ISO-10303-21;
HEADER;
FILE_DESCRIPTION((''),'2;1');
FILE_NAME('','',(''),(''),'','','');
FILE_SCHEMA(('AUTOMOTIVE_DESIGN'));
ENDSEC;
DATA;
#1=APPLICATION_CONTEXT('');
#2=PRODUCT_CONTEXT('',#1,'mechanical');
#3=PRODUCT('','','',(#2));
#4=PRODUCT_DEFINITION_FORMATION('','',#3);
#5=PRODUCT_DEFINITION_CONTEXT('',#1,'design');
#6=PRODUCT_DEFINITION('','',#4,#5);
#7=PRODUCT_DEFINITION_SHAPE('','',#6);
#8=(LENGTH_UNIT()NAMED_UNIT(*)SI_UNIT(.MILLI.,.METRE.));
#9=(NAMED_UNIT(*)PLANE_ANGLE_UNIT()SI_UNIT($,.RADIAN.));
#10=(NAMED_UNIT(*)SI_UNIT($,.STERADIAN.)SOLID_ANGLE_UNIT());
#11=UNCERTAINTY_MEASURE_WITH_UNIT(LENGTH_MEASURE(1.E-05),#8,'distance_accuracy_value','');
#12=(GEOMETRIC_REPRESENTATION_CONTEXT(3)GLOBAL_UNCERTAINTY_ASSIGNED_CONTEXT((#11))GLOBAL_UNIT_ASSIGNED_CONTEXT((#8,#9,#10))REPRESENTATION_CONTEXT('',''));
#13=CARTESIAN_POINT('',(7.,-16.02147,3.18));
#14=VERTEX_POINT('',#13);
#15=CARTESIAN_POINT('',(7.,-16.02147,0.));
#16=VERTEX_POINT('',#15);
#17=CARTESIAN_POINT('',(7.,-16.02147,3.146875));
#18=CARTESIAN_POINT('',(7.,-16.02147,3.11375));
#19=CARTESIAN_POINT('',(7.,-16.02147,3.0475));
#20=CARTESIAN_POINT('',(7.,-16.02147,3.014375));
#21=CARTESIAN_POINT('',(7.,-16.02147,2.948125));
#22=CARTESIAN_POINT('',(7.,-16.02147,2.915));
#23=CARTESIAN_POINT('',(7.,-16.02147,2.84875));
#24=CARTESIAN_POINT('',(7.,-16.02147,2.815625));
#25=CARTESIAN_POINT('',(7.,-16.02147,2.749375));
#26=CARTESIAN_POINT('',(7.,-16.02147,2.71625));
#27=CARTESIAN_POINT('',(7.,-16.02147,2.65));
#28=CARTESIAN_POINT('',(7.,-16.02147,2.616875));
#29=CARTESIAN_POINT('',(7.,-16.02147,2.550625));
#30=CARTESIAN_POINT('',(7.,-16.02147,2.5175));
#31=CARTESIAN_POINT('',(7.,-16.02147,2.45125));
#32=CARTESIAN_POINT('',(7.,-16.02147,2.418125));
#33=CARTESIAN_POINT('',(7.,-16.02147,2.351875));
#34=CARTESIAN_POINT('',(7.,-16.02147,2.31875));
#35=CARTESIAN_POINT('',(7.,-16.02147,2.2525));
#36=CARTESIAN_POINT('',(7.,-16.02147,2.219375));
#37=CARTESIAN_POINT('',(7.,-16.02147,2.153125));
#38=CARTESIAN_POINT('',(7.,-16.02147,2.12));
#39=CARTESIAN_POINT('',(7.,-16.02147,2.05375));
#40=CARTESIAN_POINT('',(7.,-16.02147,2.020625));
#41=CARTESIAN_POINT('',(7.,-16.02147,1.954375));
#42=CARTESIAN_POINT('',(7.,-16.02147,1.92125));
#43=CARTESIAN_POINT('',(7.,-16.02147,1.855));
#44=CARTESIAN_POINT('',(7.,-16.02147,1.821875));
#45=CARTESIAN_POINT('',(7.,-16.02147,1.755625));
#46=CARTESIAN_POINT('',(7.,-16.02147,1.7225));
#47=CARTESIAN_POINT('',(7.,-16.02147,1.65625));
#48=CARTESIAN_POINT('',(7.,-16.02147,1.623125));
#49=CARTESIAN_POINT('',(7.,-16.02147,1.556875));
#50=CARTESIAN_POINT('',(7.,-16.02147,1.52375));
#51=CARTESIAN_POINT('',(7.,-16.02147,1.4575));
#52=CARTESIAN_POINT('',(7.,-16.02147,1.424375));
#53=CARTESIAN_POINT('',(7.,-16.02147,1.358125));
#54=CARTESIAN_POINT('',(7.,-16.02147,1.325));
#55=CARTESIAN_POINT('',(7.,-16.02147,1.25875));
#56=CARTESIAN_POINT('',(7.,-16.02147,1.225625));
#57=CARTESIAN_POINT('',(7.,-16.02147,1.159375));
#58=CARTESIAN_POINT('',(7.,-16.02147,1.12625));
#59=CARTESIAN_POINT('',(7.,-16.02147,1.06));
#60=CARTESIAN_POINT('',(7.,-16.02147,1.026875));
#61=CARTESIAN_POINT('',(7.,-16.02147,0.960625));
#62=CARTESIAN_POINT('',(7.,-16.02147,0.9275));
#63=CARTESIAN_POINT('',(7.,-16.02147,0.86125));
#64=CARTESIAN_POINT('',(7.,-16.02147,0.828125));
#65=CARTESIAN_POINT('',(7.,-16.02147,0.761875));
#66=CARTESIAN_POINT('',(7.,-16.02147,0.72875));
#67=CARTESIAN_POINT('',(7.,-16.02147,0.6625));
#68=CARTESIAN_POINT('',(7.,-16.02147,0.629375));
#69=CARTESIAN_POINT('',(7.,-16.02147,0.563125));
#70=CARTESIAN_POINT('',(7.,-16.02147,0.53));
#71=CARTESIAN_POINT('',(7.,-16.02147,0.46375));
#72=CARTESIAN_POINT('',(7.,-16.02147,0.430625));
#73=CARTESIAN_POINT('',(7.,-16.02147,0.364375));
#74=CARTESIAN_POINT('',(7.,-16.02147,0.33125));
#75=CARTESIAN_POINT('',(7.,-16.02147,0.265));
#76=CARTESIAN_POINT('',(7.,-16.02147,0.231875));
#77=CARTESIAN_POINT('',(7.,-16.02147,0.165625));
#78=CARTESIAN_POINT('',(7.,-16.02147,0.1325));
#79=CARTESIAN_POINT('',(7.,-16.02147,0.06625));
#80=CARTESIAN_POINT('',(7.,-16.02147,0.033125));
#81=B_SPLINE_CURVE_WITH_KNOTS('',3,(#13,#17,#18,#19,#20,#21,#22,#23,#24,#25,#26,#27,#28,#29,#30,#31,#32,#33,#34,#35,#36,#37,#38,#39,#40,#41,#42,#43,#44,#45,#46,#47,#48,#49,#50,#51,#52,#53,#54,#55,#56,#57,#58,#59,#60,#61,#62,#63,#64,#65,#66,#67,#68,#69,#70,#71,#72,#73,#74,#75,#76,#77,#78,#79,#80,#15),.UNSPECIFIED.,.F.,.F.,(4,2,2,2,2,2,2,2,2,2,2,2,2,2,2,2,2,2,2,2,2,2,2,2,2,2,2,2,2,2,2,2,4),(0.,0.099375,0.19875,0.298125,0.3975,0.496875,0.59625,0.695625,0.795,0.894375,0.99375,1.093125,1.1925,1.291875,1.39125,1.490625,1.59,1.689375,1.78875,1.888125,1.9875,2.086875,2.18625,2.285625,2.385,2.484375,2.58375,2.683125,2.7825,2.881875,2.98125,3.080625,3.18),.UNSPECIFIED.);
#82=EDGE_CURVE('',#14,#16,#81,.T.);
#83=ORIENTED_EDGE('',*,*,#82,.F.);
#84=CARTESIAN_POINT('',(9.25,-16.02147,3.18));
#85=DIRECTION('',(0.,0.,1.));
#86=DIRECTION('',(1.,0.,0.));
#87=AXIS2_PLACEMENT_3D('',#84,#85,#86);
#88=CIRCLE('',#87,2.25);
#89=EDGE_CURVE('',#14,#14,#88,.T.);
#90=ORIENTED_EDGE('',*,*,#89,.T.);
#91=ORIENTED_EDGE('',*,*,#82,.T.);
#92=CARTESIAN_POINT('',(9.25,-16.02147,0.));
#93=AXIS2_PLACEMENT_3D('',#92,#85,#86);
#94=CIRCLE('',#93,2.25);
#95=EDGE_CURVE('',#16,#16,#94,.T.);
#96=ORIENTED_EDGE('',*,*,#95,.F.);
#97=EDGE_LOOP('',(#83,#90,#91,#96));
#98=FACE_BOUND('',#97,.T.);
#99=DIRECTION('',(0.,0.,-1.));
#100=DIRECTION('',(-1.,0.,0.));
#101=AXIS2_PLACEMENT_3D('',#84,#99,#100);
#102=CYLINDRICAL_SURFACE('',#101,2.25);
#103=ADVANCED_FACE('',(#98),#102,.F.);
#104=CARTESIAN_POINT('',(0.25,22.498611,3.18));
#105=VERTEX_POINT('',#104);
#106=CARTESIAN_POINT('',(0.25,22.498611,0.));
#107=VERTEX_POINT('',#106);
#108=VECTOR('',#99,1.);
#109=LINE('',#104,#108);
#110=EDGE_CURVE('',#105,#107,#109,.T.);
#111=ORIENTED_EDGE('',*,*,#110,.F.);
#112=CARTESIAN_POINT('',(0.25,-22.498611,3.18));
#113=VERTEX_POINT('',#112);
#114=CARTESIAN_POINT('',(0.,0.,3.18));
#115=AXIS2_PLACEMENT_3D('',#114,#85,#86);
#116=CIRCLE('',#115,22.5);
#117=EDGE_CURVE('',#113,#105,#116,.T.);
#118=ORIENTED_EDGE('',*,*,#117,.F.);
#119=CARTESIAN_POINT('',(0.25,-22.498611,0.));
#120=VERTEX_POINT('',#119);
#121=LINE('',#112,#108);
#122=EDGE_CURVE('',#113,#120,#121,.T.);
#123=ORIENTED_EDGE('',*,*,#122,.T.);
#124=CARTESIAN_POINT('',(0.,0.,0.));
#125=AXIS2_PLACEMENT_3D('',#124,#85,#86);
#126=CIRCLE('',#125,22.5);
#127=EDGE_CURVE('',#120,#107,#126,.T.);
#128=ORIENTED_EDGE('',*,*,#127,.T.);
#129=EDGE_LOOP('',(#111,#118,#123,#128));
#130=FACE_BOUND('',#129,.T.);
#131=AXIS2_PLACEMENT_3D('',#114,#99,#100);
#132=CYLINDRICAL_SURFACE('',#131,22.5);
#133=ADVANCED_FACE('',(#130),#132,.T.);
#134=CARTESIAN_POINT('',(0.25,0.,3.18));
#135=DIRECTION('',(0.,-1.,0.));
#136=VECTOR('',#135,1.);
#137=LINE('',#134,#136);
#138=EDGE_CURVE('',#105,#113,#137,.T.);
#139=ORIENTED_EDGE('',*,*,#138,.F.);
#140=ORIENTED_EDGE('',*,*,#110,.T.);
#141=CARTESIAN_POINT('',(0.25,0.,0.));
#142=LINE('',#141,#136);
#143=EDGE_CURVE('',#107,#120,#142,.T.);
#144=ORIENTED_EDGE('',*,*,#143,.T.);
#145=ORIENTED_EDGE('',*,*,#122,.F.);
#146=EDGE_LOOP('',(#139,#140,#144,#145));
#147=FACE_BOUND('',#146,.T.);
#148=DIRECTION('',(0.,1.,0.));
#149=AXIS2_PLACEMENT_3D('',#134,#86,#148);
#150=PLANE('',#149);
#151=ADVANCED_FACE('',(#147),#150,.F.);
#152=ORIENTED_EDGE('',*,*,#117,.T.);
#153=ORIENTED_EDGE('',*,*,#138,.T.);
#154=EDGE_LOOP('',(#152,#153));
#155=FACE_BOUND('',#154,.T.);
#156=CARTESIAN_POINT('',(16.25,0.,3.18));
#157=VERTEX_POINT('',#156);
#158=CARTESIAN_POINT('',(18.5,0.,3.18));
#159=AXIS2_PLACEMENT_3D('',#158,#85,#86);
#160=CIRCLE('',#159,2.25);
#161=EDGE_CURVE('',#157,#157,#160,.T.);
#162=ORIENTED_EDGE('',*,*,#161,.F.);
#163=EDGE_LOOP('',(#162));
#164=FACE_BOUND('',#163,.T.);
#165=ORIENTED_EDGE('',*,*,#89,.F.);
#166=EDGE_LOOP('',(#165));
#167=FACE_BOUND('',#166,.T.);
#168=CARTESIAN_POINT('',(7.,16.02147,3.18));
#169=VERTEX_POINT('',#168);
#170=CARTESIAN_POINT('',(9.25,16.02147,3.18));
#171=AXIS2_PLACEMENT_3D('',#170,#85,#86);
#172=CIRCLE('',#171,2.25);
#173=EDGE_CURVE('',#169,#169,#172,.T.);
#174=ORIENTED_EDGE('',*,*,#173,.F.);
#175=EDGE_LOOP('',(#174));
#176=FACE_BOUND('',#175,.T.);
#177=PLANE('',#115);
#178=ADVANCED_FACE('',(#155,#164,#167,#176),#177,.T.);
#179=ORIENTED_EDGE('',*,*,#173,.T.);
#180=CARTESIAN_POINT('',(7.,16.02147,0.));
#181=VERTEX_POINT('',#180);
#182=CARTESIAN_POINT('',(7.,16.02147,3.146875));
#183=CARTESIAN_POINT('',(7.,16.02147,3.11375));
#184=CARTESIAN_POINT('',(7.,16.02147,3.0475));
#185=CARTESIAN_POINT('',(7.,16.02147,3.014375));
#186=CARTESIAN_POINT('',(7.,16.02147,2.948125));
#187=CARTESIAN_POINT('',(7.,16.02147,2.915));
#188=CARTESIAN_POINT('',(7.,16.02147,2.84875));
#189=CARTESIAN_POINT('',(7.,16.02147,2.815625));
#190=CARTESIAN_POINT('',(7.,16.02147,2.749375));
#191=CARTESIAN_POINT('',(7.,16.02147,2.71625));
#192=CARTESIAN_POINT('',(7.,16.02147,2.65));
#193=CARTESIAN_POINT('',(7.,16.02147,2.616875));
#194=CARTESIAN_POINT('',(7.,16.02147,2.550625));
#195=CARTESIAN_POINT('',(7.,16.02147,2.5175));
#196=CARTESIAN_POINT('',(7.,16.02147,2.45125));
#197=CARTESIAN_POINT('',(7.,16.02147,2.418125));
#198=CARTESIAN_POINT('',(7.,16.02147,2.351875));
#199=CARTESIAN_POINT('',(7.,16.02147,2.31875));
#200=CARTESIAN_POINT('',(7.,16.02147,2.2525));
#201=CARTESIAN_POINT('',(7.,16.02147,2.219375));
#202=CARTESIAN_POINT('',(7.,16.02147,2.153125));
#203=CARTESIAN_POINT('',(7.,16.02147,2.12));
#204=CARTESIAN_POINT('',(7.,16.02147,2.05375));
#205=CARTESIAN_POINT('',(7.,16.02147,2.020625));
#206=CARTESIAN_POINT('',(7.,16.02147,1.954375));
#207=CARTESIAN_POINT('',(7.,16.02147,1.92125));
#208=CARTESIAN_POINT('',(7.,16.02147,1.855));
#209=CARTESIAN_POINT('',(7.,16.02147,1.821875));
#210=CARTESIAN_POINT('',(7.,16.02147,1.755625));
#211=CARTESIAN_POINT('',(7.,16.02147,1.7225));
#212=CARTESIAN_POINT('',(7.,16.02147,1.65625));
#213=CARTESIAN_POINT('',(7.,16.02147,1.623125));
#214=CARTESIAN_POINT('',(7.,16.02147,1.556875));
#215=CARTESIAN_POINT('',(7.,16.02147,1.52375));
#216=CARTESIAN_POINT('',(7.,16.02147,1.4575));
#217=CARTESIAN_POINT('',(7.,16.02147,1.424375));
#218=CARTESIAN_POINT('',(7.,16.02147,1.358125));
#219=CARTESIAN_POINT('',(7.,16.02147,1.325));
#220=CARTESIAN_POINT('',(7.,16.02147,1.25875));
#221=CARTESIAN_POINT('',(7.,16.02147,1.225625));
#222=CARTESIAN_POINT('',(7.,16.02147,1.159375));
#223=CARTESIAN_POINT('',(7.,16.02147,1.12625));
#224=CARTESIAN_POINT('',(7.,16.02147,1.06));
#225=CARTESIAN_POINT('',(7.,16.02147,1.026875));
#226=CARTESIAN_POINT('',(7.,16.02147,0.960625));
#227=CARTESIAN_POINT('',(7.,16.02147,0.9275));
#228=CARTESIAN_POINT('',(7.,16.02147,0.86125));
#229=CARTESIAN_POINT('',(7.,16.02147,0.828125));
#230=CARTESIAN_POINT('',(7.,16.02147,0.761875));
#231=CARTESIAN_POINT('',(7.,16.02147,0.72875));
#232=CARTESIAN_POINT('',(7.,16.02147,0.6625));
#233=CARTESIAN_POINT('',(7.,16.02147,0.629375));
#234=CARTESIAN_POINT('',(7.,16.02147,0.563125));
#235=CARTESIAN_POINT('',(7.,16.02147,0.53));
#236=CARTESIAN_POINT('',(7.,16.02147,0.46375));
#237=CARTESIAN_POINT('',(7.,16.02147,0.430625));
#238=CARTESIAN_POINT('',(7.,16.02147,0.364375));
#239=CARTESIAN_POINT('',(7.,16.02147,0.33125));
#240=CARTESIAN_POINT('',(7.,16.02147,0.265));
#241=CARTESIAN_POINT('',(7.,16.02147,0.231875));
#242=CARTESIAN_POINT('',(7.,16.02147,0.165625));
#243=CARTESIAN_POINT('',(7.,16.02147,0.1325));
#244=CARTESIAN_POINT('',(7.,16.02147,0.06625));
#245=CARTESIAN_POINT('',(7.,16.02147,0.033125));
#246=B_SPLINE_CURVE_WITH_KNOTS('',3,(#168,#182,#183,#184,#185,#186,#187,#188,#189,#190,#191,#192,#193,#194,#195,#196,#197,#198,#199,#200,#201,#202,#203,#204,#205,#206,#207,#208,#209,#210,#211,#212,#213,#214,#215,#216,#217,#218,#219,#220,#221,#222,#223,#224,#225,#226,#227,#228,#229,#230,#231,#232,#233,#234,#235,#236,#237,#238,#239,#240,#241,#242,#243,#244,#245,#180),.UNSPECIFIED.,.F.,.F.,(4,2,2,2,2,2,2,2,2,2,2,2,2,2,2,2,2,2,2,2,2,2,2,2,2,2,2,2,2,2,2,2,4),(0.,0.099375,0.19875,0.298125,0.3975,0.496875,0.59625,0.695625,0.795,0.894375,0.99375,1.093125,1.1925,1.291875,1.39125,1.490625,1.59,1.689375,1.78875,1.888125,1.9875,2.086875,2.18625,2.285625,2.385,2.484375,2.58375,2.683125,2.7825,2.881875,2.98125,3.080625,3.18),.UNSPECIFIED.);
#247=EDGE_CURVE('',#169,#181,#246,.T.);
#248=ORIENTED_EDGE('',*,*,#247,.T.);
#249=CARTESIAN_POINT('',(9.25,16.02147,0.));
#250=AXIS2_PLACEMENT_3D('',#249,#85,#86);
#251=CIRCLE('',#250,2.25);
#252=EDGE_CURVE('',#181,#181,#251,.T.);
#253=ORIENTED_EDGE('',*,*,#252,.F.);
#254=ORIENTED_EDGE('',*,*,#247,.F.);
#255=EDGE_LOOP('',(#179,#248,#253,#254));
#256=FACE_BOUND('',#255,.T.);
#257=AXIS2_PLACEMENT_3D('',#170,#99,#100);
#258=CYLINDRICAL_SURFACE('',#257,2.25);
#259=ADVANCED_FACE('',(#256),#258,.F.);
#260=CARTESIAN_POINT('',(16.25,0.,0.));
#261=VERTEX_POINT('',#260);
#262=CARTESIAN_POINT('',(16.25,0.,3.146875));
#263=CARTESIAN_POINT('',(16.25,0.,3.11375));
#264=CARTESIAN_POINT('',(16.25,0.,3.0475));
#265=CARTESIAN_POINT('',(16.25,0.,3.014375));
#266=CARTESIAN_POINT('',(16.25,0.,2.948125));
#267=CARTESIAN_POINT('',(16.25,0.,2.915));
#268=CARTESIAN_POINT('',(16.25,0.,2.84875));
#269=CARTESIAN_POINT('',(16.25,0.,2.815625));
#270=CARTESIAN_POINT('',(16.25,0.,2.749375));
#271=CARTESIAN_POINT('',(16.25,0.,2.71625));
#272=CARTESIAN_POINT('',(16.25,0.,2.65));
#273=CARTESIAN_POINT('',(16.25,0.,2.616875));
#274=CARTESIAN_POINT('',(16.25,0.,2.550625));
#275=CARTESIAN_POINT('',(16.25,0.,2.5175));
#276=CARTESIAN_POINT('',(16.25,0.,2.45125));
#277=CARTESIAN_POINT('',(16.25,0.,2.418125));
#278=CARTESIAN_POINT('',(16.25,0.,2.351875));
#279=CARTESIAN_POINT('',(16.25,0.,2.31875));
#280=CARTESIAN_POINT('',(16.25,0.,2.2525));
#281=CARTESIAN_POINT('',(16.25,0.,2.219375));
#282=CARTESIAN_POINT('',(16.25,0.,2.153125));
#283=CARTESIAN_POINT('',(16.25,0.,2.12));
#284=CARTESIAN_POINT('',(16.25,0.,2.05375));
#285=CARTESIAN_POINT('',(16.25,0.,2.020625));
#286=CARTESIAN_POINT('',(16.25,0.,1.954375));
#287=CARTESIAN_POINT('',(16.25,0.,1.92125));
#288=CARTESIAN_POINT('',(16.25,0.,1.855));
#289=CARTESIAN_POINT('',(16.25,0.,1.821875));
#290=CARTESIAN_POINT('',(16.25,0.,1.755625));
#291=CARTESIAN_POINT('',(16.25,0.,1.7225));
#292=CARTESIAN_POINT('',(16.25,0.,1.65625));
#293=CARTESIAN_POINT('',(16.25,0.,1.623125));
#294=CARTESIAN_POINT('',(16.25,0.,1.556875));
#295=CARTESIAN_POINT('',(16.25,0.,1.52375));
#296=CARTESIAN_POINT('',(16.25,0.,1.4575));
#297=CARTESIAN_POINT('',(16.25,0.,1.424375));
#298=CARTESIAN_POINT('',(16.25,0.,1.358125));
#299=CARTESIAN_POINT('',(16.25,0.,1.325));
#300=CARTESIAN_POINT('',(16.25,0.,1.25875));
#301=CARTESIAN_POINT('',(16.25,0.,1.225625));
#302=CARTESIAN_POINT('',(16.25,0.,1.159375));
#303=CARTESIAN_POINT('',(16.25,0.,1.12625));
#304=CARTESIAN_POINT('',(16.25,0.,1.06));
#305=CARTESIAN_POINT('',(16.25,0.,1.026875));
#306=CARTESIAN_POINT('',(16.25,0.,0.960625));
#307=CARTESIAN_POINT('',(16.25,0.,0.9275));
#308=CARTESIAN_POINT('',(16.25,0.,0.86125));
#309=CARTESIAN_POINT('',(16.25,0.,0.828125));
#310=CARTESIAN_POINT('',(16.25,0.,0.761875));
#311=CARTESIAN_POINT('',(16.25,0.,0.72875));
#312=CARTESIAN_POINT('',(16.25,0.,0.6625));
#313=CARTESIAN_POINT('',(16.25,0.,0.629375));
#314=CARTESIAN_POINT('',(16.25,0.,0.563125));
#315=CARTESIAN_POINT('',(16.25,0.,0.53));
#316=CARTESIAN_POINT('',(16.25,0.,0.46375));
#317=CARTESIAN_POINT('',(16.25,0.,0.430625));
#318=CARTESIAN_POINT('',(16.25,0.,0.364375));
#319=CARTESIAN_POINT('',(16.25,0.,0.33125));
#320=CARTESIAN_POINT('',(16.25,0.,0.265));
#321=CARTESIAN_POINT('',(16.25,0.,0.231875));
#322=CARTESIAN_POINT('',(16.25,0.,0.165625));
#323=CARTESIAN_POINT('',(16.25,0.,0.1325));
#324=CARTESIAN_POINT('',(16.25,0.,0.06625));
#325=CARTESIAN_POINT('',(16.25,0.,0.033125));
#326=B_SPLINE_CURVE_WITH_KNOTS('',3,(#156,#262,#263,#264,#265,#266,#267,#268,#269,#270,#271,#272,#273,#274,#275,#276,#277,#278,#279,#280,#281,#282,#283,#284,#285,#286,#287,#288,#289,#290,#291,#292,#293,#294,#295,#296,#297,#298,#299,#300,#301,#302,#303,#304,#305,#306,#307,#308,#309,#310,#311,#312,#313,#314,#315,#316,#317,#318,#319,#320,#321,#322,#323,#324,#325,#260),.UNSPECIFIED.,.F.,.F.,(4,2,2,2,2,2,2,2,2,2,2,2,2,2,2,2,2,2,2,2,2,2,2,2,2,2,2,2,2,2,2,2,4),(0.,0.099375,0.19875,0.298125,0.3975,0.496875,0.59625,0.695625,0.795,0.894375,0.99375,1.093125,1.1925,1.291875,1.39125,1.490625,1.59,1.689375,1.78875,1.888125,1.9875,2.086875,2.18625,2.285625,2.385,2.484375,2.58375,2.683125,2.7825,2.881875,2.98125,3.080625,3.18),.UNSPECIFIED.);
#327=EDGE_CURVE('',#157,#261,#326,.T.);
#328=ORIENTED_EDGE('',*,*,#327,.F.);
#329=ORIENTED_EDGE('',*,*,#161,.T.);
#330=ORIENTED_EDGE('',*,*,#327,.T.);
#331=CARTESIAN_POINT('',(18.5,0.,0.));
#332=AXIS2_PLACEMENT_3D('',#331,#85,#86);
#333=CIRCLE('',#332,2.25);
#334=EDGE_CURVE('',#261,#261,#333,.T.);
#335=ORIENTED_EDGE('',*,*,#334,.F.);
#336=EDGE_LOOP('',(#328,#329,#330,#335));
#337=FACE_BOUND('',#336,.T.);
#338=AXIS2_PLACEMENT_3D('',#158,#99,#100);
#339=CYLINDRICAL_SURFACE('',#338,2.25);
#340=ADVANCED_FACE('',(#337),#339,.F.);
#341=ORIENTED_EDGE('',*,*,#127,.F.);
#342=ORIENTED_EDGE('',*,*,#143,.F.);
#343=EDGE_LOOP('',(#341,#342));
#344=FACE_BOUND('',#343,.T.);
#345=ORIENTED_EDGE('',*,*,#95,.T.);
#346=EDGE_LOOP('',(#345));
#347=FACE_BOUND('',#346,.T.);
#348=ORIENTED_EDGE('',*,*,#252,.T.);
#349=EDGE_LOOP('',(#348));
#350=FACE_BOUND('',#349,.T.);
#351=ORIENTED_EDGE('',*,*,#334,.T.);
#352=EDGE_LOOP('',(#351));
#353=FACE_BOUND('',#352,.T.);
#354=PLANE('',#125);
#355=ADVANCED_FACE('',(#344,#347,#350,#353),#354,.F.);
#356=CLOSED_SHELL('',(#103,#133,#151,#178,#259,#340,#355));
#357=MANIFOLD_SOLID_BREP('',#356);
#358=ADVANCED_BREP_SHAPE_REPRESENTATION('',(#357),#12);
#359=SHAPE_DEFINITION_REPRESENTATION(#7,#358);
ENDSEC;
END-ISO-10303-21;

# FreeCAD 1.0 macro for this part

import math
import FreeCAD as App
import Part
import Sketcher
from FreeCAD import Vector

doc = App.newDocument("Part")
body = doc.addObject("PartDesign::Body", "Body")

# Sketch on XY plane
sketch1 = body.newObject("Sketcher::SketchObject", "Sketch")
sketch1.AttachmentSupport = (doc.getObject("XY_Plane"), [""])
sketch1.MapMode = "FlatFace"
sketch1.addGeometry([
    Part.ArcOfCircle(Part.Circle(Vector(0, 0, 0), Vector(0, 0, 1), 22.5), math.radians(0), math.radians(89.363367)),  # 0
    Part.LineSegment(Vector(0.25, 22.498611, 0), Vector(0.25, -22.498611, 0)),  # 1
    Part.ArcOfCircle(Part.Circle(Vector(0, 0, 0), Vector(0, 0, 1), 22.5), math.radians(-89.363367), math.radians(0)),  # 2
    Part.Circle(Vector(9.25, -16.02147, 0), Vector(0, 0, 1), 2.25),  # 3
    Part.Circle(Vector(9.25, 16.02147, 0), Vector(0, 0, 1), 2.25),  # 4
    Part.Circle(Vector(18.5, 0, 0), Vector(0, 0, 1), 2.25),  # 5
], False)
sketch1.addConstraint([
    Sketcher.Constraint("Coincident", 0, 2, 1, 1),
    Sketcher.Constraint("Coincident", 1, 2, 2, 1),
    Sketcher.Constraint("Tangent", 2, 2, 0, 1),
    Sketcher.Constraint("Vertical", 1),
    Sketcher.Constraint("Coincident", 0, 3, -1, 1),
    Sketcher.Constraint("Equal", 0, 2),
    Sketcher.Constraint("Equal", 3, 4),
    Sketcher.Constraint("Equal", 4, 5),
    Sketcher.Constraint("Symmetric", 3, 3, 4, 3, -1),
    Sketcher.Constraint("PointOnObject", 5, 3, -1),
    Sketcher.Constraint("PointOnObject", 2, 2, -1),
    Sketcher.Constraint("Diameter", 3, 4.5),
    Sketcher.Constraint("Radius", 0, 22.5),
    Sketcher.Constraint("DistanceX", 0, 2, 4, 3, 9.0),
    Sketcher.Constraint("DistanceX", 5, 3, 2, 2, 4.0),
    Sketcher.Constraint("DistanceX", -1, 1, 3, 3, 9.25),
    Sketcher.Constraint("DistanceY", 3, 3, -1, 1, 16.02147),
])
pad1 = body.newObject("PartDesign::Pad", "Pad")
pad1.Profile = sketch1
pad1.Length = 3.18

doc.recompute()
